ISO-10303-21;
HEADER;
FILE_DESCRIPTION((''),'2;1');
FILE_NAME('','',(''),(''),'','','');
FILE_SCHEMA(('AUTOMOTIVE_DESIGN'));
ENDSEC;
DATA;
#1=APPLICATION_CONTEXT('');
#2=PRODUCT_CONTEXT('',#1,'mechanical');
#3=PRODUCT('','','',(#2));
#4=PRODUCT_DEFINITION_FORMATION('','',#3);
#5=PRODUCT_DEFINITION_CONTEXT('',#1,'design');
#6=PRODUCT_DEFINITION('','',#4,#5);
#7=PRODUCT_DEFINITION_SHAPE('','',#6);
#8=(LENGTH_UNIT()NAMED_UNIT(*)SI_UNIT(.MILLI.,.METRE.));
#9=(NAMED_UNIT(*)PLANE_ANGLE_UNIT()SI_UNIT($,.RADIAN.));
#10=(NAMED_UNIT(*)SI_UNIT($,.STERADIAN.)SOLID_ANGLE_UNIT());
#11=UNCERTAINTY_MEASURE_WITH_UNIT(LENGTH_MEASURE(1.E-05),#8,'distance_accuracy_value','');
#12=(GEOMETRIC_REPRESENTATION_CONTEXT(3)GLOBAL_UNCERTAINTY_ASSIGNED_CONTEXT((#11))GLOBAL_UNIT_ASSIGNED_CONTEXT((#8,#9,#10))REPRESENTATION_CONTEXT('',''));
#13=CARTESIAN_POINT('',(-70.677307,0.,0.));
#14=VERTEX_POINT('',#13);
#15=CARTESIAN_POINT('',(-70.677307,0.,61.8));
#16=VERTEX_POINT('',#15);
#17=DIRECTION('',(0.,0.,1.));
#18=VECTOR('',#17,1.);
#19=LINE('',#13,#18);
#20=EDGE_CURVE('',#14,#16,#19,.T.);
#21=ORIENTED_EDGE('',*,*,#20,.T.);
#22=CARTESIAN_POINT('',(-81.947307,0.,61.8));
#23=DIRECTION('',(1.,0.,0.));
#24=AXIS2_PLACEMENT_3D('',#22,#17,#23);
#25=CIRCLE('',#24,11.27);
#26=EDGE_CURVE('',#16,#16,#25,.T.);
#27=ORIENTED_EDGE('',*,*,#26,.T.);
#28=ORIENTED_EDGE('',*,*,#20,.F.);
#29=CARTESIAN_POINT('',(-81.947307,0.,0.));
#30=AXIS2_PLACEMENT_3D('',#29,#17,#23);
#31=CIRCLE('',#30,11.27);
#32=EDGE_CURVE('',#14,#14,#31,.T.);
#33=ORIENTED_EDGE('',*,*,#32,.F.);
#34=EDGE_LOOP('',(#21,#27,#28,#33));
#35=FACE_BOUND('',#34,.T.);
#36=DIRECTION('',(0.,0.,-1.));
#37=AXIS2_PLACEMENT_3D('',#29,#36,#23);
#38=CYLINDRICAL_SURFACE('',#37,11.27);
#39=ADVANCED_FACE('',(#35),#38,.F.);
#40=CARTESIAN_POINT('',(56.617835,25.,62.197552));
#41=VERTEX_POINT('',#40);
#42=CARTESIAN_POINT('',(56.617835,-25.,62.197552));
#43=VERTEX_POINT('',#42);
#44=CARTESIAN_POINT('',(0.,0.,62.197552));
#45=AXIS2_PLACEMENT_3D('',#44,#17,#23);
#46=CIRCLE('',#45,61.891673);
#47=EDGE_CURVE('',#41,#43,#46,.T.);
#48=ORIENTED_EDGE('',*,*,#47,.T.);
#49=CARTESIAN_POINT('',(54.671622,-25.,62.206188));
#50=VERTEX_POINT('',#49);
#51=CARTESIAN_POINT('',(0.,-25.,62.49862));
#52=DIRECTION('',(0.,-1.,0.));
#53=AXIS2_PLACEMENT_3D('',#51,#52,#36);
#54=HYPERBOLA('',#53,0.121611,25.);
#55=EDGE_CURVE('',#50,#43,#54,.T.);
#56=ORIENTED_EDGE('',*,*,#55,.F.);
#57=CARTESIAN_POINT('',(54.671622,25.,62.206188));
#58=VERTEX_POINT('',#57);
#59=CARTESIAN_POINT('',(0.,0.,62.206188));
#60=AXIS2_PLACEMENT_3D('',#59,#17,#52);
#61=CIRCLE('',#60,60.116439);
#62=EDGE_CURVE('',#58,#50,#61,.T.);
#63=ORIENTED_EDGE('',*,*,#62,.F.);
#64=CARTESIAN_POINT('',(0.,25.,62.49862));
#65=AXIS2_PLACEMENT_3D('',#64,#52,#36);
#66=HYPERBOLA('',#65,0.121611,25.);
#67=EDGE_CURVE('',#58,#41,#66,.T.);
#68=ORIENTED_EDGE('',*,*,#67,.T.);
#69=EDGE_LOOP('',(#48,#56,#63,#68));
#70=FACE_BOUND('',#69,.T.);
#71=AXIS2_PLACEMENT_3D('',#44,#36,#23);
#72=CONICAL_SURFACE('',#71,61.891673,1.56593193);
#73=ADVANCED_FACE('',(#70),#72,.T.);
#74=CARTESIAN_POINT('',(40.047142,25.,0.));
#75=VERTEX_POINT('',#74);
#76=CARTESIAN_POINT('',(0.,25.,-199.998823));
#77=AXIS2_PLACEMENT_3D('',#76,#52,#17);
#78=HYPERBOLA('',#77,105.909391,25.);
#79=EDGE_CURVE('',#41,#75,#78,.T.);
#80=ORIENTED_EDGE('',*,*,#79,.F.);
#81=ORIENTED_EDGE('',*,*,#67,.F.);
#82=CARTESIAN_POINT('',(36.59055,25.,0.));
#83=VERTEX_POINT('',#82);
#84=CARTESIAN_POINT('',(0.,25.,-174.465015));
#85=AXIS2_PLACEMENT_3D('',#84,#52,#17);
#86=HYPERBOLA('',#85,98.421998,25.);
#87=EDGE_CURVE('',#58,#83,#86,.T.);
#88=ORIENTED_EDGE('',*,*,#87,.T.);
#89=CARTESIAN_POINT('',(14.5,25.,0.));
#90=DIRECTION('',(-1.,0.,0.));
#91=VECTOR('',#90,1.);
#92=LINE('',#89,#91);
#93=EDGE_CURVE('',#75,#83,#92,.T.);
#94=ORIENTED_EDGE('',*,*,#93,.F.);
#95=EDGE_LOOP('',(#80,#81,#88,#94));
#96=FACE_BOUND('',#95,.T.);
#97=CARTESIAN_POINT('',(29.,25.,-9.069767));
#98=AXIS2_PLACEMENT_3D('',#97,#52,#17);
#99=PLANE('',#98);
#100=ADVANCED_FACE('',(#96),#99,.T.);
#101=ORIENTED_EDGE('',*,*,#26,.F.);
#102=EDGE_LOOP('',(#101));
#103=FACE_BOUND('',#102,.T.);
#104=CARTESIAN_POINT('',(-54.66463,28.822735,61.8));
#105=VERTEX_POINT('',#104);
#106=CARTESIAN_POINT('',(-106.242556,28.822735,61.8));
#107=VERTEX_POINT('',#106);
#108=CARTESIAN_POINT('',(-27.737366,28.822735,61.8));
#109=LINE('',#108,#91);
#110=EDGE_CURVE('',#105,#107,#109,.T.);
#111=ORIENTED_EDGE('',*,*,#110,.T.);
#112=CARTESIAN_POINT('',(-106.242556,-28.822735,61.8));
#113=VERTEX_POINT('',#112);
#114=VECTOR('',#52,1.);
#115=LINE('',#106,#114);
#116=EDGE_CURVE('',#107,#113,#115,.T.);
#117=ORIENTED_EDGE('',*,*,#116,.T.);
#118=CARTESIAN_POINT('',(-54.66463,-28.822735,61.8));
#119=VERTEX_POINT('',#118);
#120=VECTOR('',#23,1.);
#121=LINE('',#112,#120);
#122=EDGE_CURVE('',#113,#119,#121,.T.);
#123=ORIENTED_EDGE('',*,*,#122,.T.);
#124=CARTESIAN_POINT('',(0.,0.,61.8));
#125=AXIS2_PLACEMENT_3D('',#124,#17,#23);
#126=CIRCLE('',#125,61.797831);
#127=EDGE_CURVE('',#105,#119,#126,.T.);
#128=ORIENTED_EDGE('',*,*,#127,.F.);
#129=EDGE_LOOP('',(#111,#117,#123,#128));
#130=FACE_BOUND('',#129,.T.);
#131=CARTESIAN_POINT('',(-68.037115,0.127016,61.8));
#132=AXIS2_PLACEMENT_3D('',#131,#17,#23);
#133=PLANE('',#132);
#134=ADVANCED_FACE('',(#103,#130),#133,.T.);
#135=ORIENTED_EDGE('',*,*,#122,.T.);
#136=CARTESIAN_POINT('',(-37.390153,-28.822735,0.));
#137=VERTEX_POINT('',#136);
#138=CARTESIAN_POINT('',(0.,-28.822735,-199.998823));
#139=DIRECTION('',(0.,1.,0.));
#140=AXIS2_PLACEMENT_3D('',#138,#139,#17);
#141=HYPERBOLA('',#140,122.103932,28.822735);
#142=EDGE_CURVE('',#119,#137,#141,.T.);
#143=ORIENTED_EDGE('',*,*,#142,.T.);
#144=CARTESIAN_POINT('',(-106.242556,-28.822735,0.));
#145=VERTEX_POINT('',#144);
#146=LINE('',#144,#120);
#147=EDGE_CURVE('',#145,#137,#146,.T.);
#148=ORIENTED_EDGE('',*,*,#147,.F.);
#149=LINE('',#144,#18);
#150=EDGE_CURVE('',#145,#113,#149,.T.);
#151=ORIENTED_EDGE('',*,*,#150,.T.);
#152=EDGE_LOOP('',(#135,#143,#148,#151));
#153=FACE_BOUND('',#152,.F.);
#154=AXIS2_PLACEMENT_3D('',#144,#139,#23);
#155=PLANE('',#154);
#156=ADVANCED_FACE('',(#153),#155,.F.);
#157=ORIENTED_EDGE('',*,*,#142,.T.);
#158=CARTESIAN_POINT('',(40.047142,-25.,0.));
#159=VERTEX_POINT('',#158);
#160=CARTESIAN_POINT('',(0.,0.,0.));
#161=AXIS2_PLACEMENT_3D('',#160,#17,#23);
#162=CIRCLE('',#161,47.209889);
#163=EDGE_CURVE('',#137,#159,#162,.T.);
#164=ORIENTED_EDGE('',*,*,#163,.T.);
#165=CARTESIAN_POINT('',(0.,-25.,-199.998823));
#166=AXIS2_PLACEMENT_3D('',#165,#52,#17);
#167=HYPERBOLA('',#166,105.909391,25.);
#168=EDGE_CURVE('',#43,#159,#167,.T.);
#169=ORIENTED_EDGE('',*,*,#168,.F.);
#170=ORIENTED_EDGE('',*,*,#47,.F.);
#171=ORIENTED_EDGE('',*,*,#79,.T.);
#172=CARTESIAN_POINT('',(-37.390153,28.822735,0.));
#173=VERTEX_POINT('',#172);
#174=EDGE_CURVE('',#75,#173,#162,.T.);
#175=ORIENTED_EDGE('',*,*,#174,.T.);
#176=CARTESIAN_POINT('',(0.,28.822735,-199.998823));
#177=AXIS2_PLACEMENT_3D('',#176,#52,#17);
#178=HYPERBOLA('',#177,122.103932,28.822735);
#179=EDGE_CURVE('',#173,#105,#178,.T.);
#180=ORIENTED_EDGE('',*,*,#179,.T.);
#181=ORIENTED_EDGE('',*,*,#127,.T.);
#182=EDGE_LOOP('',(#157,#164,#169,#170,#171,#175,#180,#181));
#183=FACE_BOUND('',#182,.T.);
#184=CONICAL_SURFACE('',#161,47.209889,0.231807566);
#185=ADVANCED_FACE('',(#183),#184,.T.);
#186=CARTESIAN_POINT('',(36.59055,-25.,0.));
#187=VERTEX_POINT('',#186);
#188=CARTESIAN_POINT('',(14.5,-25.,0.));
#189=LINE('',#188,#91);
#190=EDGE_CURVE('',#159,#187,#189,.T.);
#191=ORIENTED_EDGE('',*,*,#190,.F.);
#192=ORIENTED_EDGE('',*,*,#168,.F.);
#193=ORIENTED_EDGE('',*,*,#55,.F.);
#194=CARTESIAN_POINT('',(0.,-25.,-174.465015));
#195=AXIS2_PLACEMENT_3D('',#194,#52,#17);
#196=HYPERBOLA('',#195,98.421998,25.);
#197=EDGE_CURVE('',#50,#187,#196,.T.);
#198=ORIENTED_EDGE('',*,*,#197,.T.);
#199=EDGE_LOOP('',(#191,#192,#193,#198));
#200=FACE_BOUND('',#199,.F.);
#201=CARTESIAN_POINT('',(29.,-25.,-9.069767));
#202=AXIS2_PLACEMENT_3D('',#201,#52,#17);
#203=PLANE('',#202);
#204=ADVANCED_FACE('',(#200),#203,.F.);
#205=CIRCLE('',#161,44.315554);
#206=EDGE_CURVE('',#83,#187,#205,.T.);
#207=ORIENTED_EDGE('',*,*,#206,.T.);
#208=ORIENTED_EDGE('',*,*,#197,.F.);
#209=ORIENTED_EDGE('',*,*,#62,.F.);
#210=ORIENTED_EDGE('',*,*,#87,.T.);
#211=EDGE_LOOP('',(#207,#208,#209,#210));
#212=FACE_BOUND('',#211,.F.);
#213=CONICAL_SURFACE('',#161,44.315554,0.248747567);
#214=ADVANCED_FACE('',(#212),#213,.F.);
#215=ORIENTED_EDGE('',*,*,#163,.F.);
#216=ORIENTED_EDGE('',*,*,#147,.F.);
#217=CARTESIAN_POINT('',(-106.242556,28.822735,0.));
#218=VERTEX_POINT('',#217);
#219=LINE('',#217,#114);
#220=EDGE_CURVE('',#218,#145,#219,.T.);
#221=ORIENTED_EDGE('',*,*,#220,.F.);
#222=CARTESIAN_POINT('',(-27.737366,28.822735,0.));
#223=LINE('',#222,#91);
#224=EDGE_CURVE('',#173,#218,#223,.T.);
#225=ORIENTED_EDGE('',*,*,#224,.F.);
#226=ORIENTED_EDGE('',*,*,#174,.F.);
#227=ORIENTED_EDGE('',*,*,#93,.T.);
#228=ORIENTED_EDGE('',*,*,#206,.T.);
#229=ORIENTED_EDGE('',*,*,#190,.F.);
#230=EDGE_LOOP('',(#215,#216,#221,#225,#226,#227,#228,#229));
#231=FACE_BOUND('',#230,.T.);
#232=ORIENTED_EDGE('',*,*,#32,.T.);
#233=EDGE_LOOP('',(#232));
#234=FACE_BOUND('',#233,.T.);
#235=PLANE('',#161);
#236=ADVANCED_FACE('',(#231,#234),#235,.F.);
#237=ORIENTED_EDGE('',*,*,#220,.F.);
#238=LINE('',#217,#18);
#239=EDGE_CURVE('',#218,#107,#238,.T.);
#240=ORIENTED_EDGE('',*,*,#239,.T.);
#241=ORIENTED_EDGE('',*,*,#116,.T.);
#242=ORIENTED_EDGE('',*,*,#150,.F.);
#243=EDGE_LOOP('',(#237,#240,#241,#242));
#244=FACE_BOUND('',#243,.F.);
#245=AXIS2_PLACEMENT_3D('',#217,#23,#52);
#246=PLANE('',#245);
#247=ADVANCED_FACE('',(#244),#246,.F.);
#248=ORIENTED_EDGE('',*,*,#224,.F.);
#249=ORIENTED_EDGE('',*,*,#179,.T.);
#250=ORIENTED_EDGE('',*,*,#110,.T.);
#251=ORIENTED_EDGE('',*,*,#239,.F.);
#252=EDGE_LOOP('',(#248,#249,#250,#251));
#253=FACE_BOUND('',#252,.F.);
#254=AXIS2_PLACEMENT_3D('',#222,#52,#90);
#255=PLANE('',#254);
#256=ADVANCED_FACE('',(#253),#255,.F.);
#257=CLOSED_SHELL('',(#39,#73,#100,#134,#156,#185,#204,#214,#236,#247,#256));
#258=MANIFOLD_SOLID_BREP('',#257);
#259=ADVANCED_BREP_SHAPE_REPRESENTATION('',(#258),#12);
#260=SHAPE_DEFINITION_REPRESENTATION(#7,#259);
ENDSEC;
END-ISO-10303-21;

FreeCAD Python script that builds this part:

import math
import FreeCAD as App
import Part
import Sketcher

V = App.Vector
Q = App.Units.Quantity


def add_polygon(sketch, points):
    """Adds a closed chain of lines whose ends are joined by coincident constraints."""
    first, n = sketch.GeometryCount, len(points)
    for a, b in zip(points, points[1:] + points[:1]):
        sketch.addGeometry(Part.LineSegment(App.Vector(*a, 0), App.Vector(*b, 0)), False)
    for i in range(n):
        sketch.addConstraint(Sketcher.Constraint("Coincident", first + i, 2, first + (i + 1) % n, 1))

doc = App.newDocument("Part")
body = doc.addObject("PartDesign::Body", "Body")

sketch1 = body.newObject("Sketcher::SketchObject", "Sketch")
sketch1.AttachmentSupport = (doc.getObject("XZ_Plane"), [""])
sketch1.MapMode = "FlatFace"
add_polygon(sketch1, [(47.209889, 0), (61.891673, 62.197552), (0, 62.49862), (0, 0)])
sketch1.addConstraint(Sketcher.Constraint("Vertical", 2))
sketch1.addConstraint(Sketcher.Constraint("Horizontal", 3))
sketch1.addConstraint(Sketcher.Constraint("Coincident", 2, 2, -1, 1))
sketch1.addConstraint(Sketcher.Constraint("DistanceX", 3, 1, 3, 2, Q("47.209889 mm")))
sketch1.addConstraint(Sketcher.Constraint("DistanceY", 2, 2, 2, 1, Q("62.49862 mm")))
sketch1.addConstraint(Sketcher.Constraint("DistanceY", 0, 2, 1, 2, Q("0.301068 mm")))
sketch1.addConstraint(Sketcher.Constraint("Distance", 0, Q("63.906887 mm")))
revolution = body.newObject("PartDesign::Revolution", "Revolution")
revolution.Profile = sketch1
revolution.ReferenceAxis = (sketch1, ["V_Axis"])
revolution.Angle = 360

sketch2 = body.newObject("Sketcher::SketchObject", "Sketch001")
sketch2.AttachmentSupport = (doc.getObject("YZ_Plane"), [""])
sketch2.MapMode = "FlatFace"
sketch2.AttachmentOffset = App.Placement(V(0, 0, 29), App.Rotation())
add_polygon(sketch2, [(-25, 66.976747), (-25, -9.069767), (25, -9.069767), (25, 66.976747)])
sketch2.addConstraint(Sketcher.Constraint("Vertical", 0))
sketch2.addConstraint(Sketcher.Constraint("Horizontal", 1))
sketch2.addConstraint(Sketcher.Constraint("Vertical", 2))
sketch2.addConstraint(Sketcher.Constraint("Horizontal", 3))
sketch2.addConstraint(Sketcher.Constraint("DistanceX", 1, 1, 1, 2, Q("50 mm")))
sketch2.addConstraint(Sketcher.Constraint("DistanceX", 0, 2, -1, 1, Q("25 mm")))
sketch2.addConstraint(Sketcher.Constraint("DistanceY", 0, 2, 0, 1, Q("76.046514 mm")))
sketch2.addConstraint(Sketcher.Constraint("DistanceY", 0, 2, -1, 1, Q("9.069767 mm")))
pocket1 = body.newObject("PartDesign::Pocket", "Pocket")
pocket1.Profile = sketch2
pocket1.Length = 61.9
pocket1.Reversed = True

sketch3 = body.newObject("Sketcher::SketchObject", "Sketch002")
sketch3.AttachmentSupport = (doc.getObject("XY_Plane"), [""])
sketch3.MapMode = "FlatFace"
sketch3.addGeometry(Part.LineSegment(V(-27.737366, 28.822735, 0), V(-106.242556, 28.822735, 0)), False)
sketch3.addGeometry(Part.LineSegment(V(-106.242556, 28.822735, 0), V(-106.242556, -28.822735, 0)), False)
sketch3.addGeometry(Part.LineSegment(V(-106.242556, -28.822735, 0), V(-28.702144, -28.822735, 0)), False)
sketch3.addGeometry(Part.ArcOfCircle(Part.Circle(V(1.035467, -0.489627, 0), V(0, 0, 1), 41.074207), math.radians(134.467818), math.radians(223.61451)), False)
sketch3.addGeometry(Part.Circle(V(-81.947307, 0, 0), V(0, 0, 1), 11.27), False)
sketch3.addConstraint(Sketcher.Constraint("Coincident", 0, 2, 1, 1))
sketch3.addConstraint(Sketcher.Constraint("Coincident", 1, 2, 2, 1))
sketch3.addConstraint(Sketcher.Constraint("Coincident", 2, 2, 3, 2))
sketch3.addConstraint(Sketcher.Constraint("Coincident", 3, 1, 0, 1))
sketch3.addConstraint(Sketcher.Constraint("Horizontal", 0))
sketch3.addConstraint(Sketcher.Constraint("Vertical", 1))
sketch3.addConstraint(Sketcher.Constraint("Horizontal", 2))
sketch3.addConstraint(Sketcher.Constraint("PointOnObject", 4, 3, -1))
sketch3.addConstraint(Sketcher.Constraint("Diameter", 4, Q("22.54 mm")))
sketch3.addConstraint(Sketcher.Constraint("Radius", 3, Q("41.074207 mm")))
sketch3.addConstraint(Sketcher.Constraint("DistanceX", 0, 2, 0, 1, Q("78.50519 mm")))
sketch3.addConstraint(Sketcher.Constraint("DistanceX", 2, 1, 2, 2, Q("77.540412 mm")))
sketch3.addConstraint(Sketcher.Constraint("DistanceY", 1, 2, 1, 1, Q("57.64547 mm")))
sketch3.addConstraint(Sketcher.Constraint("DistanceX", 0, 2, 4, 3, Q("24.295249 mm")))
sketch3.addConstraint(Sketcher.Constraint("DistanceX", -1, 1, 3, 3, Q("1.035467 mm")))
sketch3.addConstraint(Sketcher.Constraint("DistanceY", 3, 3, -1, 1, Q("0.489627 mm")))
pad1 = body.newObject("PartDesign::Pad", "Pad")
pad1.Profile = sketch3
pad1.Length = 61.8

sketch4 = body.newObject("Sketcher::SketchObject", "Sketch003")
sketch4.AttachmentSupport = (doc.getObject("XZ_Plane"), [""])
sketch4.MapMode = "FlatFace"
add_polygon(sketch4, [(0, 62.710572), (0, 0), (44.315554, 0), (60.244557, 62.710572)])
sketch4.addConstraint(Sketcher.Constraint("Vertical", 0))
sketch4.addConstraint(Sketcher.Constraint("Horizontal", 1))
sketch4.addConstraint(Sketcher.Constraint("Horizontal", 3))
sketch4.addConstraint(Sketcher.Constraint("Coincident", 0, 2, -1, 1))
sketch4.addConstraint(Sketcher.Constraint("Distance", 2, Q("64.702001 mm")))
sketch4.addConstraint(Sketcher.Constraint("DistanceX", 1, 1, 1, 2, Q("44.315554 mm")))
sketch4.addConstraint(Sketcher.Constraint("DistanceX", 3, 2, 3, 1, Q("60.244557 mm")))
groove = body.newObject("PartDesign::Groove", "Groove")
groove.Profile = sketch4
groove.ReferenceAxis = (sketch4, ["V_Axis"])
groove.Angle = 360

doc.recompute()
